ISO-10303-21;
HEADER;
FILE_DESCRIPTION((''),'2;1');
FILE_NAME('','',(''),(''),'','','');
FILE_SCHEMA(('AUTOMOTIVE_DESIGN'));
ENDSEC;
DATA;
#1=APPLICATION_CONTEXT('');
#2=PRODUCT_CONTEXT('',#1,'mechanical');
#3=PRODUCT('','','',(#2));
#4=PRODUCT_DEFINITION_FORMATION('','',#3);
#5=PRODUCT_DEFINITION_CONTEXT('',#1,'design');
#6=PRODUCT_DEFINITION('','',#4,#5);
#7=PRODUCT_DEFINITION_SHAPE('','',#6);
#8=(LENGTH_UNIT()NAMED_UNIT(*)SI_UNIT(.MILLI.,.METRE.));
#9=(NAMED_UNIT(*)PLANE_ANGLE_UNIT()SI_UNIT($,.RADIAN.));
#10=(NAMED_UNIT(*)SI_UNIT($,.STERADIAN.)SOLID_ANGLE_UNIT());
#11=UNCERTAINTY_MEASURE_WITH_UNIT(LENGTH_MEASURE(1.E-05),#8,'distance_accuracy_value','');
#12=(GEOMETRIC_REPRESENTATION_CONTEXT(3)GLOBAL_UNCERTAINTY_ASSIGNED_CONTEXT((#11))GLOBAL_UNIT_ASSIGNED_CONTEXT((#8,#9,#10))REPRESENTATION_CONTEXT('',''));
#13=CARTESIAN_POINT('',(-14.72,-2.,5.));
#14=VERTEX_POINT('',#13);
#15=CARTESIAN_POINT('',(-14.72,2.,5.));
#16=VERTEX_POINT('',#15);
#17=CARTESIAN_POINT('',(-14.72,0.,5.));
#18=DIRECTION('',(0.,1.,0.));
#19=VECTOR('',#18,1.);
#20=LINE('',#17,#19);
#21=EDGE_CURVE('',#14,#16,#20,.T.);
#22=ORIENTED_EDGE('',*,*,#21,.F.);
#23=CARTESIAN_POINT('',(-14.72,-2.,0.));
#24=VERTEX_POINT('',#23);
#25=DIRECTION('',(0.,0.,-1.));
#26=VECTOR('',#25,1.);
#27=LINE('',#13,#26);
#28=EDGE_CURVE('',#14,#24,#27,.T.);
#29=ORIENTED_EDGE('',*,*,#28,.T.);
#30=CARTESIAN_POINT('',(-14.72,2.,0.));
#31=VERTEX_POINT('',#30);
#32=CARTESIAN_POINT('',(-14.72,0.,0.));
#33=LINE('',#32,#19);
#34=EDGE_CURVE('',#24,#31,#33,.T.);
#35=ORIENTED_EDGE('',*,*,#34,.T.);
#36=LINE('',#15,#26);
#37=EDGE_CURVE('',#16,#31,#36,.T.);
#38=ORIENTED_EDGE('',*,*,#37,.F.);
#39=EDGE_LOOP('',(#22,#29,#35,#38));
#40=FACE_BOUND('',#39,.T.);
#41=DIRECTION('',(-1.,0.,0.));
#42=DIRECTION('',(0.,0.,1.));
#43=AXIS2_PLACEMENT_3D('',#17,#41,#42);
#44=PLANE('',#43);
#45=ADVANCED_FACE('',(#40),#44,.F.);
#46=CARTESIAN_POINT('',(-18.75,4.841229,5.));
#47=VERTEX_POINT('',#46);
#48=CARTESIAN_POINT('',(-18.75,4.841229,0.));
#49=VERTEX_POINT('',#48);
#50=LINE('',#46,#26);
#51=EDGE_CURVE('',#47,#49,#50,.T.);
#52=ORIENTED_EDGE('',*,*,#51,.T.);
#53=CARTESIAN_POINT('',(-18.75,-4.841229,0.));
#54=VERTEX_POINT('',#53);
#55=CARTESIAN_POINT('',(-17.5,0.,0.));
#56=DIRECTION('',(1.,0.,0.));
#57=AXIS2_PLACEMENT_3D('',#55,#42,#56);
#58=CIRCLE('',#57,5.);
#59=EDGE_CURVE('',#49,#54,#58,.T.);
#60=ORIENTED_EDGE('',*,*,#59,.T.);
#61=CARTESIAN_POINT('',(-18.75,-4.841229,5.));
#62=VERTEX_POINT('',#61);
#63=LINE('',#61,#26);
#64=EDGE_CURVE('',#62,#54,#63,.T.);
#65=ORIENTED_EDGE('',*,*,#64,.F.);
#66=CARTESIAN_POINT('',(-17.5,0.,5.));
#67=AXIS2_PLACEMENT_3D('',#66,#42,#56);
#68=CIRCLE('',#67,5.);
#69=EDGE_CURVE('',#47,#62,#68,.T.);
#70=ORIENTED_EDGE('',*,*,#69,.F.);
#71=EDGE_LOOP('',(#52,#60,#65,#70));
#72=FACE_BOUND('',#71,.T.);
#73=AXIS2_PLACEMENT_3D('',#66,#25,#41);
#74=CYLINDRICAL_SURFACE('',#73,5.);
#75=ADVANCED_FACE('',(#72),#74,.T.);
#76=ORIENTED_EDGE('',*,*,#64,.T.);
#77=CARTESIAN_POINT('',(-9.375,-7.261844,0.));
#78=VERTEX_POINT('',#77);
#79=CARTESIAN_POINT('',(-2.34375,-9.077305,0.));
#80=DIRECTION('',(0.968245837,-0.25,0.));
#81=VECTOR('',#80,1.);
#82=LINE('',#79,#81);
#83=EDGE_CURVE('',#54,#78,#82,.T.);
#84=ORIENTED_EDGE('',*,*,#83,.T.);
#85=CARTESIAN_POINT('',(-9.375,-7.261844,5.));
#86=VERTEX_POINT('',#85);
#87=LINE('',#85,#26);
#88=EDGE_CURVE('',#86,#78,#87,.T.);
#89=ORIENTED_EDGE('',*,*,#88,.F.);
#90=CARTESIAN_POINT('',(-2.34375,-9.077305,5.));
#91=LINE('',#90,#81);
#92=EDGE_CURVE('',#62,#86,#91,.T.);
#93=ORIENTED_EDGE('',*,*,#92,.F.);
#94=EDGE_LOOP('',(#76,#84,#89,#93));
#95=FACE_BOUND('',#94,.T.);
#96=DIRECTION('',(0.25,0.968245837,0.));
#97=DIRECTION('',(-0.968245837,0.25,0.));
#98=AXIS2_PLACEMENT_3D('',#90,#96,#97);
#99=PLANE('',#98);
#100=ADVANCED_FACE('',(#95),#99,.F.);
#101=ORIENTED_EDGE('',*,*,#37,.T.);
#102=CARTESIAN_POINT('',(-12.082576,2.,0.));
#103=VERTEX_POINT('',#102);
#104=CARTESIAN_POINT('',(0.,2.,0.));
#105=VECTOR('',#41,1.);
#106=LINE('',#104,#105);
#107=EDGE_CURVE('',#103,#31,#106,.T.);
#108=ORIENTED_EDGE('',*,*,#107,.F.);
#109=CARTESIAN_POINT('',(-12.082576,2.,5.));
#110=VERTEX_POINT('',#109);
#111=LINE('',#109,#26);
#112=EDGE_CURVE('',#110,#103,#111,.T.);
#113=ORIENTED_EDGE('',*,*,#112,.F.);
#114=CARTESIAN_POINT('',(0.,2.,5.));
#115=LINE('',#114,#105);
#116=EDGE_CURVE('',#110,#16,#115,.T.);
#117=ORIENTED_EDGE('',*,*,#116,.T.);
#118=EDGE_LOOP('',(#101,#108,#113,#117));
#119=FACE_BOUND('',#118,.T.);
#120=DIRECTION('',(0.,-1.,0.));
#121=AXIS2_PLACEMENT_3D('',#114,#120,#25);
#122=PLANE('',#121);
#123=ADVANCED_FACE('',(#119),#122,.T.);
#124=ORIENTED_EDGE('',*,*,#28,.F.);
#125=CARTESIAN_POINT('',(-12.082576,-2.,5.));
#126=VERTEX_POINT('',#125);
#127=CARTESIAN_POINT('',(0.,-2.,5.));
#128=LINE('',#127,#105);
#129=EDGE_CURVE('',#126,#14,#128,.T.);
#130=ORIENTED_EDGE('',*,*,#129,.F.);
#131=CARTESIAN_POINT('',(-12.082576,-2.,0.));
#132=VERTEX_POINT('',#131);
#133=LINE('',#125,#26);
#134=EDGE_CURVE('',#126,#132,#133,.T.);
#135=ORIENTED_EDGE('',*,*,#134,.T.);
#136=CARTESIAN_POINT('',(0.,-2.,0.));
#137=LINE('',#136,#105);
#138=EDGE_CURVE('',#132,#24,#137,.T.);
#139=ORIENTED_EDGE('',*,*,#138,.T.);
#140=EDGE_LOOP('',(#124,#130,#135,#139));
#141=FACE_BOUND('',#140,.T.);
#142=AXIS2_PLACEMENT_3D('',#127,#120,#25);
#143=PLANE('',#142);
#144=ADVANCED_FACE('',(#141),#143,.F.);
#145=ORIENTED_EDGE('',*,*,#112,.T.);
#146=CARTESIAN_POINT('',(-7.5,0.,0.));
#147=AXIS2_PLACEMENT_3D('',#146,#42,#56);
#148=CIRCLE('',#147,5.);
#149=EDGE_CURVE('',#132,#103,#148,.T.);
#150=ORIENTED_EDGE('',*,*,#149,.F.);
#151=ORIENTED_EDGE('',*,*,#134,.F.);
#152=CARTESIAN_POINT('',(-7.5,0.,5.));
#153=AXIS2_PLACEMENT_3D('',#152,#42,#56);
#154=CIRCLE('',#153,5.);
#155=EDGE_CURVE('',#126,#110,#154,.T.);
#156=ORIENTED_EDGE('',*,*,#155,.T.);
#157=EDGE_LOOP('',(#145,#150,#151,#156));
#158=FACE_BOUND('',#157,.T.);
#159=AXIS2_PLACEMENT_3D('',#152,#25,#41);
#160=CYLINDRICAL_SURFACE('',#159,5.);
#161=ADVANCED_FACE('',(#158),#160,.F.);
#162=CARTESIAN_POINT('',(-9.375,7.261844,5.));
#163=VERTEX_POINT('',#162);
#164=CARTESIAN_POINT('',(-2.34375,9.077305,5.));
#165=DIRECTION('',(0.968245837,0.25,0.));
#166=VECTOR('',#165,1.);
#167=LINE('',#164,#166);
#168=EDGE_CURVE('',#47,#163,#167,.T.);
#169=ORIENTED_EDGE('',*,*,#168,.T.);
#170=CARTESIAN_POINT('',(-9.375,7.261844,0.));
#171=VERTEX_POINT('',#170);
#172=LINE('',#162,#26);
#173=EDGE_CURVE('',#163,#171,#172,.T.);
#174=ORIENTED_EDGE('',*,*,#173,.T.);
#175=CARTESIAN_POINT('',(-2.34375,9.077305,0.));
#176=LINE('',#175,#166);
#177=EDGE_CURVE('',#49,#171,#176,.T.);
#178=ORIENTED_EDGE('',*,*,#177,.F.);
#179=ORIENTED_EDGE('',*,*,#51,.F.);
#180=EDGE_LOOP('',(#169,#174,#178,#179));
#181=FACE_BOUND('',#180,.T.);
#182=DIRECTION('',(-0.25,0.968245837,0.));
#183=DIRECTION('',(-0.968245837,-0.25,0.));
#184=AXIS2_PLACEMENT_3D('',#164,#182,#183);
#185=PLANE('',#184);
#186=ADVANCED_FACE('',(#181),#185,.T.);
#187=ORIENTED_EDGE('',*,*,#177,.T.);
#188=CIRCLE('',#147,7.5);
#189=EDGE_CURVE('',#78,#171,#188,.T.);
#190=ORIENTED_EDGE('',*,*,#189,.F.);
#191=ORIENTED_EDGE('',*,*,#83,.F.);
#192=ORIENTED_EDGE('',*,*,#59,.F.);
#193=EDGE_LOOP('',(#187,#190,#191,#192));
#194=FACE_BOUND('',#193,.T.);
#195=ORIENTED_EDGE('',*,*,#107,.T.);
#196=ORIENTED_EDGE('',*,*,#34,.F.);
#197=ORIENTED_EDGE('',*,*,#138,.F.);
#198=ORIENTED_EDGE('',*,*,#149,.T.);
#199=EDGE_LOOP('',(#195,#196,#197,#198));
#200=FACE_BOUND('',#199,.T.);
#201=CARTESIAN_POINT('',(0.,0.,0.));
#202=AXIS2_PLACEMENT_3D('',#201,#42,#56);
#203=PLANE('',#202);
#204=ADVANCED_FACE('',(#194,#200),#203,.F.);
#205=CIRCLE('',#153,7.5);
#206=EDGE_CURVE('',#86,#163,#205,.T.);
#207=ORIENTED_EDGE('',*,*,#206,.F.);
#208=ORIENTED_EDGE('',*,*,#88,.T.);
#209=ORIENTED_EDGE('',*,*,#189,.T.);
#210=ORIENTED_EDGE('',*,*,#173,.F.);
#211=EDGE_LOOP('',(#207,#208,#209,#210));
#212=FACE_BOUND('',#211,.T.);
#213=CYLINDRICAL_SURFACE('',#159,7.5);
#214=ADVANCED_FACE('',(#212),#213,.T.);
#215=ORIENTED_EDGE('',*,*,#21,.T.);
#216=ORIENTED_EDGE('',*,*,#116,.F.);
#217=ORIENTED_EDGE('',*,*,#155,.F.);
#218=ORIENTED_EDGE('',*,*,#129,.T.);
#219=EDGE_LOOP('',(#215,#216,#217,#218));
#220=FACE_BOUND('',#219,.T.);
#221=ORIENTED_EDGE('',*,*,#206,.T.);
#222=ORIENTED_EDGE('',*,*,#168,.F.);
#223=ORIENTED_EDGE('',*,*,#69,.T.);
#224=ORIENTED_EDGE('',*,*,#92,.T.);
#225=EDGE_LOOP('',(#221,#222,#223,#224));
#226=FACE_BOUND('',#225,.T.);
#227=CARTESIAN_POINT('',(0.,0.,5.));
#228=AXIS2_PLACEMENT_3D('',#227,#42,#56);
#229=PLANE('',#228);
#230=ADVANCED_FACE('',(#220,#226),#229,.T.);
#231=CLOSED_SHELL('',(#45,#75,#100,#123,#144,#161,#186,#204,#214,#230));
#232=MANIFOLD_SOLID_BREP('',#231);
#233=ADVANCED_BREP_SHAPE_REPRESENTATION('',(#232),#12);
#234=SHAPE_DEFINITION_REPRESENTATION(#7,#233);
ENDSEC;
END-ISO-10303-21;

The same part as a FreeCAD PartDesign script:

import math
import FreeCAD as App
import Part
import Sketcher
from FreeCAD import Vector

doc = App.newDocument("Part")
body = doc.addObject("PartDesign::Body", "Body")

sketch1 = body.newObject("Sketcher::SketchObject", "Sketch")
sketch1.AttachmentSupport = (doc.getObject("XY_Plane"), [""])
sketch1.MapMode = "FlatFace"
sketch1.addGeometry(Part.ArcOfCircle(Part.Circle(Vector(-17.5, 0, 0), Vector(0, 0, 1), 5), math.radians(104), math.radians(256)), False)
sketch1.addGeometry(Part.LineSegment(Vector(-18.8, -4.8, 0), Vector(-9.4, -7.3, 0)), False)
sketch1.addGeometry(Part.ArcOfCircle(Part.Circle(Vector(-7.5, 0, 0), Vector(0, 0, 1), 7.5), math.radians(-104), math.radians(104)), False)
sketch1.addGeometry(Part.LineSegment(Vector(-9.4, 7.3, 0), Vector(-18.8, 4.8, 0)), False)
sketch1.addGeometry(Part.LineSegment(Vector(-14.7, 2, 0), Vector(-12.1, 2, 0)), False)
sketch1.addGeometry(Part.ArcOfCircle(Part.Circle(Vector(-7.5, 0, 0), Vector(0, 0, 1), 5), math.radians(-156), math.radians(156)), False)
sketch1.addGeometry(Part.LineSegment(Vector(-12.1, -2, 0), Vector(-14.7, -2, 0)), False)
sketch1.addGeometry(Part.LineSegment(Vector(-14.7, -2, 0), Vector(-14.7, 2, 0)), False)
sketch1.addConstraint(Sketcher.Constraint("Tangent", 0, 2, 1, 1))
sketch1.addConstraint(Sketcher.Constraint("Tangent", 1, 2, 2, 1))
sketch1.addConstraint(Sketcher.Constraint("Tangent", 2, 2, 3, 1))
sketch1.addConstraint(Sketcher.Constraint("Tangent", 3, 2, 0, 1))
sketch1.addConstraint(Sketcher.Constraint("Coincident", 4, 2, 5, 2))
sketch1.addConstraint(Sketcher.Constraint("Coincident", 5, 1, 6, 1))
sketch1.addConstraint(Sketcher.Constraint("Coincident", 6, 2, 7, 1))
sketch1.addConstraint(Sketcher.Constraint("Coincident", 7, 2, 4, 1))
sketch1.addConstraint(Sketcher.Constraint("Horizontal", 4))
sketch1.addConstraint(Sketcher.Constraint("Horizontal", 6))
sketch1.addConstraint(Sketcher.Constraint("Vertical", 7))
sketch1.addConstraint(Sketcher.Constraint("Coincident", 5, 3, 2, 3))
sketch1.addConstraint(Sketcher.Constraint("Equal", 0, 5))
sketch1.addConstraint(Sketcher.Constraint("Symmetric", 1, 2, 2, 2, -1))
sketch1.addConstraint(Sketcher.Constraint("Vertical", 4, 2, 5, 1))
sketch1.addConstraint(Sketcher.Constraint("Radius", 0, 5.0))
sketch1.addConstraint(Sketcher.Constraint("Radius", 2, 7.5))
sketch1.addConstraint(Sketcher.Constraint("DistanceY", 7, 1, 7, 2, 4.0))
sketch1.addConstraint(Sketcher.Constraint("DistanceX", 0, 3, 2, 3, 10.0))
sketch1.addConstraint(Sketcher.Constraint("DistanceX", 0, 3, -1, 1, 17.5))
sketch1.addConstraint(Sketcher.Constraint("DistanceX", 6, 2, -1, 1, 14.72))
pad1 = body.newObject("PartDesign::Pad", "Pad")
pad1.Profile = sketch1
pad1.Length = 5

doc.recompute()
